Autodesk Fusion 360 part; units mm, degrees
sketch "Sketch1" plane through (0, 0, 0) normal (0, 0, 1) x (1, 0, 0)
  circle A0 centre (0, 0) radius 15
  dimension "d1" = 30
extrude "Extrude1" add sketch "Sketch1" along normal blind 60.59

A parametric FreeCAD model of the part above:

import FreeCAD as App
import Part
import Sketcher
Q = App.Units.Quantity

doc = App.newDocument("Part")
params = doc.addObject("Spreadsheet::Sheet", "Params")
for row, (alias, value) in enumerate([
    ("sketch1_diameter", "30 mm"),
    ("pad1_length", "60.59 mm"),
], start=1):
    params.set(f"A{row}", alias)
    params.set(f"B{row}", "=" + value)
    params.setAlias(f"B{row}", alias)

body = doc.addObject("PartDesign::Body", "Body")

# Sketch on XY plane
sketch1 = doc.addObject("Sketcher::SketchObject", "Sketch")
body.addObject(sketch1)
sketch1.AttachmentSupport = (doc.XY_Plane, [""])
sketch1.MapMode = "FlatFace"
sketch1.addGeometry(Part.Circle(App.Vector(0, 0, 0), App.Vector(0, 0, 1), 15), False)
sketch1.addConstraint([
    Sketcher.Constraint("Coincident", 0, 3, -1, 1),
    Sketcher.Constraint("Diameter", 0, Q("30 mm")),
])
sketch1.setExpression("Constraints[1]", "Params.sketch1_diameter")
pad1 = doc.addObject("PartDesign::Pad", "Pad")
body.addObject(pad1)
pad1.Profile = sketch1
pad1.setExpression("Length", "Params.pad1_length")

doc.recompute()
